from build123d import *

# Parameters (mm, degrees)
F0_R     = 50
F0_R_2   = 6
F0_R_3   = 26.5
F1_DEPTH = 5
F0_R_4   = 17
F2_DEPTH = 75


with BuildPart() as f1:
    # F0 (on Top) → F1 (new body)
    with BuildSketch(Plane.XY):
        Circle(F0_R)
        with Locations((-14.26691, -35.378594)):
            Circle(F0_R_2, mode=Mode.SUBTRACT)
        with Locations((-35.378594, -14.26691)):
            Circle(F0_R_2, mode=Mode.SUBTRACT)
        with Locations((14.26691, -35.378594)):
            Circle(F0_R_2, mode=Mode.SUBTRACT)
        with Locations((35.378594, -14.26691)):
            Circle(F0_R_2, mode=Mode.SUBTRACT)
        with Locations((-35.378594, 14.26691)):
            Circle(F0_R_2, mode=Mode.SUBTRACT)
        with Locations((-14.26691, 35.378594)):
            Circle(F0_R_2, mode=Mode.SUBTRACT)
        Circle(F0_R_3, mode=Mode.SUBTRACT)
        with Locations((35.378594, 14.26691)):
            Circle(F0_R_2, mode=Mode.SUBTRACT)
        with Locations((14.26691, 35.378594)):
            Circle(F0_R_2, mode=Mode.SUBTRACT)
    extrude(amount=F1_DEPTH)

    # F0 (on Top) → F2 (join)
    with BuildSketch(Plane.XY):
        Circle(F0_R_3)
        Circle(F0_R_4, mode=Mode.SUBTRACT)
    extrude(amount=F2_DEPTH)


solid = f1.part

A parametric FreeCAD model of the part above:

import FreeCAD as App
import Part
import Sketcher
from FreeCAD import Vector

doc = App.newDocument("Part")
body = doc.addObject("PartDesign::Body", "Body")

sketch1 = body.newObject("Sketcher::SketchObject", "Sketch")
sketch1.AttachmentSupport = (doc.getObject("XY_Plane"), [""])
sketch1.MapMode = "FlatFace"
sketch1.addGeometry([
    Part.Circle(Vector(0, 0, 0), Vector(0, 0, 1), 50),
    Part.Circle(Vector(-14.26691, -35.378594, 0), Vector(0, 0, 1), 6),
    Part.Circle(Vector(-35.378594, -14.26691, 0), Vector(0, 0, 1), 6),
    Part.Circle(Vector(0, 0, 0), Vector(0, 0, 1), 26.5),
    Part.Circle(Vector(14.26691, -35.378594, 0), Vector(0, 0, 1), 6),
    Part.Circle(Vector(35.378594, -14.26691, 0), Vector(0, 0, 1), 6),
    Part.Circle(Vector(-35.378594, 14.26691, 0), Vector(0, 0, 1), 6),
    Part.Circle(Vector(-14.26691, 35.378594, 0), Vector(0, 0, 1), 6),
    Part.Circle(Vector(35.378594, 14.26691, 0), Vector(0, 0, 1), 6),
    Part.Circle(Vector(14.26691, 35.378594, 0), Vector(0, 0, 1), 6),
], False)
sketch1.addConstraint([
    Sketcher.Constraint("Coincident", 0, 3, -1, 1),
    Sketcher.Constraint("Coincident", 3, 3, -1, 1),
    Sketcher.Constraint("Equal", 1, 2),
    Sketcher.Constraint("Equal", 2, 4),
    Sketcher.Constraint("Equal", 4, 5),
    Sketcher.Constraint("Equal", 5, 6),
    Sketcher.Constraint("Equal", 6, 7),
    Sketcher.Constraint("Equal", 7, 8),
    Sketcher.Constraint("Equal", 8, 9),
    Sketcher.Constraint("Symmetric", 5, 3, 6, 3, -1, 1),
    Sketcher.Constraint("Symmetric", 4, 3, 7, 3, -1, 1),
    Sketcher.Constraint("Symmetric", 2, 3, 8, 3, -1, 1),
    Sketcher.Constraint("Symmetric", 1, 3, 9, 3, -1, 1),
    Sketcher.Constraint("Symmetric", 1, 3, 4, 3, -2),
    Sketcher.Constraint("Symmetric", 2, 3, 5, 3, -2),
    Sketcher.Constraint("Diameter", 0, 100.0),
    Sketcher.Constraint("Diameter", 1, 12.0),
    Sketcher.Constraint("Diameter", 3, 53.0),
    Sketcher.Constraint("DistanceX", 1, 3, -1, 1, 14.26691),
    Sketcher.Constraint("DistanceY", 2, 3, -1, 1, 14.26691),
    Sketcher.Constraint("DistanceX", 2, 3, 5, 3, 70.757188),
    Sketcher.Constraint("DistanceY", 1, 3, -1, 1, 35.378594),
])
pad1 = body.newObject("PartDesign::Pad", "Pad")
pad1.Profile = sketch1
pad1.Length = 5

sketch2 = body.newObject("Sketcher::SketchObject", "Sketch001")
sketch2.AttachmentSupport = (doc.getObject("XY_Plane"), [""])
sketch2.MapMode = "FlatFace"
sketch2.addGeometry([
    Part.Circle(Vector(0, 0, 0), Vector(0, 0, 1), 26.5),
    Part.Circle(Vector(0, 0, 0), Vector(0, 0, 1), 17),
], False)
sketch2.addConstraint([
    Sketcher.Constraint("Coincident", 0, 3, -1, 1),
    Sketcher.Constraint("Coincident", 1, 3, -1, 1),
    Sketcher.Constraint("Diameter", 0, 53.0),
    Sketcher.Constraint("Diameter", 1, 34.0),
])
pad2 = body.newObject("PartDesign::Pad", "Pad001")
pad2.Profile = sketch2
pad2.Length = 75

doc.recompute()
